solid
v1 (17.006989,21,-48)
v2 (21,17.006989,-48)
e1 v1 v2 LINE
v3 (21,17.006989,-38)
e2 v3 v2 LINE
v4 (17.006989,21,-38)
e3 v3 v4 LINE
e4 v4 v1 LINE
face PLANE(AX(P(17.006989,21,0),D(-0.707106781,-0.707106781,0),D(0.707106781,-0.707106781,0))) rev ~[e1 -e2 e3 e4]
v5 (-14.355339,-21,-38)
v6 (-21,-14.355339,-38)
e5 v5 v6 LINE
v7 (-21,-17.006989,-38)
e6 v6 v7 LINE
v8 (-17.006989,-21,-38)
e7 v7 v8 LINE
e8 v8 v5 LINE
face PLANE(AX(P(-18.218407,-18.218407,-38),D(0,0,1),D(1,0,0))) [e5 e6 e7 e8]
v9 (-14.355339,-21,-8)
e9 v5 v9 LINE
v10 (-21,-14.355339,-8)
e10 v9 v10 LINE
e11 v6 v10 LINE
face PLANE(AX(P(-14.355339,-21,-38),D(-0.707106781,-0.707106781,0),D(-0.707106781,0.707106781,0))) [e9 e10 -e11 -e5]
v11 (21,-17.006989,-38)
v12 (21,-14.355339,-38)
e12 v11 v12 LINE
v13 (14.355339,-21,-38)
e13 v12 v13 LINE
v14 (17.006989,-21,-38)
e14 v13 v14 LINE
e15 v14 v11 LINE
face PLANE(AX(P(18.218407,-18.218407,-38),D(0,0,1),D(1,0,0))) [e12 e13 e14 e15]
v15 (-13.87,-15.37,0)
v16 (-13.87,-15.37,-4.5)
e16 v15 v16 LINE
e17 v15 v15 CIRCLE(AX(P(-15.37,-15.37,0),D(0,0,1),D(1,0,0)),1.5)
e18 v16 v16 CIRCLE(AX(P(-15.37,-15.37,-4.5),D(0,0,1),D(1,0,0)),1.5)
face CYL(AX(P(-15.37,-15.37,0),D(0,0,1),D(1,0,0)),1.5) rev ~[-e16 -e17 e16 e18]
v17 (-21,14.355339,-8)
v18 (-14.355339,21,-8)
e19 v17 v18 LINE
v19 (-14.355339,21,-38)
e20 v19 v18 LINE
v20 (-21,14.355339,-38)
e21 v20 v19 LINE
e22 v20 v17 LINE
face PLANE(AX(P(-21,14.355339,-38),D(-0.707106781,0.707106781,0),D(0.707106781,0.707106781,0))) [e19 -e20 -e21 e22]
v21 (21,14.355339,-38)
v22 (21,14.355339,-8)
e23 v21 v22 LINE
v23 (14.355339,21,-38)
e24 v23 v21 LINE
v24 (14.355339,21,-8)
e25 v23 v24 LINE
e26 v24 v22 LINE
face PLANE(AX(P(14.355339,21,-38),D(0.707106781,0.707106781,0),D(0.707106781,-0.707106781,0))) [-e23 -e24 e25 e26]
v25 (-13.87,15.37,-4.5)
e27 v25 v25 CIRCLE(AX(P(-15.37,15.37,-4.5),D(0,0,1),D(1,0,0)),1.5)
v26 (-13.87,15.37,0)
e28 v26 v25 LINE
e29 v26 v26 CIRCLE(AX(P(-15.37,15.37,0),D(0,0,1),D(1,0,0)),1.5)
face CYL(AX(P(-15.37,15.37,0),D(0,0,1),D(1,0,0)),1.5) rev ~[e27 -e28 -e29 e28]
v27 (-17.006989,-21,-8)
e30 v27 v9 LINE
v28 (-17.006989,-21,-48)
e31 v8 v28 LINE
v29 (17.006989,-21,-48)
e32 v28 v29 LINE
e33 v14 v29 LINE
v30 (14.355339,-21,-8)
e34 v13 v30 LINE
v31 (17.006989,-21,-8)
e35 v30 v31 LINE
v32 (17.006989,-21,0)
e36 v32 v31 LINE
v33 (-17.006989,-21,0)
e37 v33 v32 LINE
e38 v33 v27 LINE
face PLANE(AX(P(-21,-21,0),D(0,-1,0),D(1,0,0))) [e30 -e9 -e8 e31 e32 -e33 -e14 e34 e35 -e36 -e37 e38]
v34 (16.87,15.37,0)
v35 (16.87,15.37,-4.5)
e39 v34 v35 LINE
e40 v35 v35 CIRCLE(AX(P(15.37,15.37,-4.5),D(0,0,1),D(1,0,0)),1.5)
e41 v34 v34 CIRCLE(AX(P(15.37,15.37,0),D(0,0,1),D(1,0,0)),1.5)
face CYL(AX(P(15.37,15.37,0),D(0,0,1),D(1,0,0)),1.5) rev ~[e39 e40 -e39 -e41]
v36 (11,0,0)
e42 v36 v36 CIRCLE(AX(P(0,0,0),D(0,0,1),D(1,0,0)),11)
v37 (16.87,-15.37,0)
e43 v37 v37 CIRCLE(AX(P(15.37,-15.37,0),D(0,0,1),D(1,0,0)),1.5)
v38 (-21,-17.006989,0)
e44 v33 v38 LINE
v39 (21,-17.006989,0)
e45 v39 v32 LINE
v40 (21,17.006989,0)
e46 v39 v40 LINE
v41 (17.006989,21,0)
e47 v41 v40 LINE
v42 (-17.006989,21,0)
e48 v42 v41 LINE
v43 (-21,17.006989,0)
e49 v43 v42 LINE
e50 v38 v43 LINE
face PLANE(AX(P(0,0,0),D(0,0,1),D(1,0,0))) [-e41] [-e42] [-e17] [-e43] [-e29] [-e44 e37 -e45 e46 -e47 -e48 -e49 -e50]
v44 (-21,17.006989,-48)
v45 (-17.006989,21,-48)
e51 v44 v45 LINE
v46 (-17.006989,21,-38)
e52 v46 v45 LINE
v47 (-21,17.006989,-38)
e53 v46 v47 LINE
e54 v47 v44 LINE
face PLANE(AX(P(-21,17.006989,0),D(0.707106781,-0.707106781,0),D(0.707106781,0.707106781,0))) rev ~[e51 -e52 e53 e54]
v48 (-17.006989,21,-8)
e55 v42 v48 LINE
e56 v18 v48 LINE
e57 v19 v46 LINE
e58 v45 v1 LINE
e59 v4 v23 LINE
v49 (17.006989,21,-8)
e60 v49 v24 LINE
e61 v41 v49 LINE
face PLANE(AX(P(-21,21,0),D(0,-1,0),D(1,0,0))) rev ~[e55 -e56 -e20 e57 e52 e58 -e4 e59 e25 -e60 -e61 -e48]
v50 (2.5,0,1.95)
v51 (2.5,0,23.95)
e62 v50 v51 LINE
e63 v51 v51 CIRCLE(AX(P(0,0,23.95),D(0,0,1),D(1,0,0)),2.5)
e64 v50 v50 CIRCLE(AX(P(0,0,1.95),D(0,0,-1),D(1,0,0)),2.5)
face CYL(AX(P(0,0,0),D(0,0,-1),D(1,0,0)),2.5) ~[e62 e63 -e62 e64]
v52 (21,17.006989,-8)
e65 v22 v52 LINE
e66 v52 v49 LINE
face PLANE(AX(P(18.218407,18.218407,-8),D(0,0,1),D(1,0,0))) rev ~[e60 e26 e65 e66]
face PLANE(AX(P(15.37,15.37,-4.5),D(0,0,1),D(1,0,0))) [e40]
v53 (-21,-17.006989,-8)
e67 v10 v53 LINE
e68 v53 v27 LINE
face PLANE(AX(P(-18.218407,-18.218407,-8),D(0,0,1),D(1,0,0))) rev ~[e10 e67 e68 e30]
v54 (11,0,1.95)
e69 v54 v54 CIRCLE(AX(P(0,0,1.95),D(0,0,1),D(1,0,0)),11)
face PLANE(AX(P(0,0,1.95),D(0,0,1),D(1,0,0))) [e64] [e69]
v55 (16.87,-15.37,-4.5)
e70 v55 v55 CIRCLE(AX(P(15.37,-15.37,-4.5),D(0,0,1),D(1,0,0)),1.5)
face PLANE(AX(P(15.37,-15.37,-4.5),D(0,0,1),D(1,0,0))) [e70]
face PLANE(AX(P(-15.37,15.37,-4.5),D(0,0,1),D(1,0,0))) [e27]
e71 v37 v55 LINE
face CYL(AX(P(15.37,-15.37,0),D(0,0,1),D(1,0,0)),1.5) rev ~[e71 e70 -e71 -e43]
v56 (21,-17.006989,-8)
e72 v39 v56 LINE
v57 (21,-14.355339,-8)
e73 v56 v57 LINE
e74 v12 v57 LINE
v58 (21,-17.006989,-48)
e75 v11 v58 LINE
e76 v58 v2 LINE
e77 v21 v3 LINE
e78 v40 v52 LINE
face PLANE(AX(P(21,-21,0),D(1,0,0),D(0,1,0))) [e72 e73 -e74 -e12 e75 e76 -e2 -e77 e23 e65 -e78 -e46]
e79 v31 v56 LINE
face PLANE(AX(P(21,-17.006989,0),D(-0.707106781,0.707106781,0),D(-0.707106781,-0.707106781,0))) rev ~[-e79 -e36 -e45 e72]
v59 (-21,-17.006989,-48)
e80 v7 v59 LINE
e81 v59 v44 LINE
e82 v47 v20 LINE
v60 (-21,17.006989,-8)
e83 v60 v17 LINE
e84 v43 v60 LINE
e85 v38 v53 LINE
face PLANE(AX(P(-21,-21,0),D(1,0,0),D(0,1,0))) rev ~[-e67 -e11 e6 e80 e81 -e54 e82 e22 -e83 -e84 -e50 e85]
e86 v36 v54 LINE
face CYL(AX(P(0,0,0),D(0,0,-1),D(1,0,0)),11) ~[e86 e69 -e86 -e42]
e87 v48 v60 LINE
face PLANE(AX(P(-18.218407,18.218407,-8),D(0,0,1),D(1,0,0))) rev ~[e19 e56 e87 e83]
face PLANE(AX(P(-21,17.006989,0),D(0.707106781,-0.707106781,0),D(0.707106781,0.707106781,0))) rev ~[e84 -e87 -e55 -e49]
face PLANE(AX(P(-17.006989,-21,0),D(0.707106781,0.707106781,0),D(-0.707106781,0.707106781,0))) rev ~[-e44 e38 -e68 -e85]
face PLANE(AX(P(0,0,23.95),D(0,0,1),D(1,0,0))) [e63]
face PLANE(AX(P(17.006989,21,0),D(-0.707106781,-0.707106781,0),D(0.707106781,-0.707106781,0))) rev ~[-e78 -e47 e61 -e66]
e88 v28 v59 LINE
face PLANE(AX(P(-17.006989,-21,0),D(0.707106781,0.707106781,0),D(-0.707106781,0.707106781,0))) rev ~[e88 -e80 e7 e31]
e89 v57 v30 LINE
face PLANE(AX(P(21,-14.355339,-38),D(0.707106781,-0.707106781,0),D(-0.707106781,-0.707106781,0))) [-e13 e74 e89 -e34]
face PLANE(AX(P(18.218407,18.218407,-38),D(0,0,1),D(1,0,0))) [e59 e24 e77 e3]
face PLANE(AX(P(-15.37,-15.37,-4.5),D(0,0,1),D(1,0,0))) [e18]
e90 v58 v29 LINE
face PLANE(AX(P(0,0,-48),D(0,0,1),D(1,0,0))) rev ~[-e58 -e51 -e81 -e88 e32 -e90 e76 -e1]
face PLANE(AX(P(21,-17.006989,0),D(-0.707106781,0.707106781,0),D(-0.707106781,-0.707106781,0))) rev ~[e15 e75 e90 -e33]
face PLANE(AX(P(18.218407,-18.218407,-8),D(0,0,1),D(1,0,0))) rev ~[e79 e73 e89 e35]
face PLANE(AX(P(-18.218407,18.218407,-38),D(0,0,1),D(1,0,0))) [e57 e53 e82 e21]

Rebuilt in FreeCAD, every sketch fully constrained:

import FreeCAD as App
import Part
import Sketcher

V = App.Vector
Q = App.Units.Quantity

doc = App.newDocument("Part")
body = doc.addObject("PartDesign::Body", "Body")

# Sketch on XY plane
sketch1 = body.newObject("Sketcher::SketchObject", "Sketch")
sketch1.AttachmentSupport = (doc.getObject("XY_Plane"), [""])
sketch1.MapMode = "FlatFace"
sketch1.addGeometry([
    Part.LineSegment(V(-21, 21, 0), V(-21, -21, 0)),  # 0
    Part.LineSegment(V(-21, -21, 0), V(21, -21, 0)),  # 1
    Part.LineSegment(V(21, -21, 0), V(21, 21, 0)),  # 2
    Part.LineSegment(V(21, 21, 0), V(-21, 21, 0)),  # 3
    Part.Circle(V(-15.4, -15.4, 0), V(0, 0, 1), 1.5),  # 4
    Part.Circle(V(15.4, -15.4, 0), V(0, 0, 1), 1.5),  # 5
    Part.Circle(V(-15.4, 15.4, 0), V(0, 0, 1), 1.5),  # 6
    Part.Circle(V(15.4, 15.4, 0), V(0, 0, 1), 1.5),  # 7
], False)
sketch1.addConstraint([
    Sketcher.Constraint("Coincident", 0, 2, 1, 1),
    Sketcher.Constraint("Coincident", 1, 2, 2, 1),
    Sketcher.Constraint("Coincident", 2, 2, 3, 1),
    Sketcher.Constraint("Coincident", 3, 2, 0, 1),
    Sketcher.Constraint("Vertical", 0),
    Sketcher.Constraint("Horizontal", 1),
    Sketcher.Constraint("Vertical", 2),
    Sketcher.Constraint("Horizontal", 3),
    Sketcher.Constraint("Equal", 4, 5),
    Sketcher.Constraint("Equal", 5, 6),
    Sketcher.Constraint("Equal", 6, 7),
    Sketcher.Constraint("Symmetric", 5, 3, 6, 3, -1, 1),
    Sketcher.Constraint("Symmetric", 4, 3, 7, 3, -1, 1),
    Sketcher.Constraint("Symmetric", 0, 2, 2, 2, -1, 1),
    Sketcher.Constraint("Symmetric", 4, 3, 5, 3, -2),
    Sketcher.Constraint("Equal", 3, 0),
    Sketcher.Constraint("Diameter", 4, Q("3 mm")),
    Sketcher.Constraint("DistanceX", 1, 1, 1, 2, Q("42 mm")),
    Sketcher.Constraint("DistanceX", 4, 3, -1, 1, Q("15.37 mm")),
    Sketcher.Constraint("DistanceY", 4, 3, -1, 1, Q("15.37 mm")),
])
pad1 = body.newObject("PartDesign::Pad", "Pad")
pad1.Profile = sketch1
pad1.Length = 48
pad1.Reversed = True

# Sketch on XY plane
sketch2 = body.newObject("Sketcher::SketchObject", "Sketch001")
sketch2.AttachmentSupport = (doc.getObject("XY_Plane"), [""])
sketch2.MapMode = "FlatFace"
sketch2.addGeometry(Part.Circle(V(0, 0, 0), V(0, 0, 1), 11), False)
sketch2.addConstraint([
    Sketcher.Constraint("Coincident", 0, 3, -1, 1),
    Sketcher.Constraint("Diameter", 0, Q("22 mm")),
])
pad2 = body.newObject("PartDesign::Pad", "Pad001")
pad2.Profile = sketch2
pad2.Length = 1.95

# Sketch on XY plane
sketch3 = body.newObject("Sketcher::SketchObject", "Sketch002")
sketch3.AttachmentSupport = (doc.getObject("XY_Plane"), [""])
sketch3.MapMode = "FlatFace"
sketch3.addGeometry(Part.Circle(V(0, 0, 0), V(0, 0, 1), 2.5), False)
sketch3.addConstraint([
    Sketcher.Constraint("Coincident", 0, 3, -1, 1),
    Sketcher.Constraint("Diameter", 0, Q("5 mm")),
])
pad3 = body.newObject("PartDesign::Pad", "Pad002")
pad3.Profile = sketch3
pad3.Length = 23.95

# Sketch on XY plane
sketch4 = body.newObject("Sketcher::SketchObject", "Sketch003")
sketch4.AttachmentSupport = (doc.getObject("XY_Plane"), [""])
sketch4.MapMode = "FlatFace"
sketch4.addGeometry([
    Part.LineSegment(V(-21, 17, 0), V(-17, 21, 0)),  # 0
    Part.LineSegment(V(-17, 21, 0), V(-21, 21, 0)),  # 1
    Part.LineSegment(V(-21, 21, 0), V(-21, 17, 0)),  # 2
    Part.LineSegment(V(-21, -21, 0), V(-17, -21, 0)),  # 3
    Part.LineSegment(V(-17, -21, 0), V(-21, -17, 0)),  # 4
    Part.LineSegment(V(-21, -17, 0), V(-21, -21, 0)),  # 5
    Part.LineSegment(V(17, 21, 0), V(21, 17, 0)),  # 6
    Part.LineSegment(V(21, 17, 0), V(21, 21, 0)),  # 7
    Part.LineSegment(V(21, 21, 0), V(17, 21, 0)),  # 8
    Part.LineSegment(V(21, -21, 0), V(21, -17, 0)),  # 9
    Part.LineSegment(V(21, -17, 0), V(17, -21, 0)),  # 10
    Part.LineSegment(V(17, -21, 0), V(21, -21, 0)),  # 11
], False)
sketch4.addConstraint([
    Sketcher.Constraint("Coincident", 0, 2, 1, 1),
    Sketcher.Constraint("Coincident", 1, 2, 2, 1),
    Sketcher.Constraint("Coincident", 2, 2, 0, 1),
    Sketcher.Constraint("Coincident", 3, 2, 4, 1),
    Sketcher.Constraint("Coincident", 4, 2, 5, 1),
    Sketcher.Constraint("Coincident", 5, 2, 3, 1),
    Sketcher.Constraint("Coincident", 6, 2, 7, 1),
    Sketcher.Constraint("Coincident", 7, 2, 8, 1),
    Sketcher.Constraint("Coincident", 8, 2, 6, 1),
    Sketcher.Constraint("Coincident", 9, 2, 10, 1),
    Sketcher.Constraint("Coincident", 10, 2, 11, 1),
    Sketcher.Constraint("Coincident", 11, 2, 9, 1),
    Sketcher.Constraint("Horizontal", 1),
    Sketcher.Constraint("Vertical", 2),
    Sketcher.Constraint("Horizontal", 3),
    Sketcher.Constraint("Vertical", 5),
    Sketcher.Constraint("Vertical", 7),
    Sketcher.Constraint("Horizontal", 8),
    Sketcher.Constraint("Vertical", 9),
    Sketcher.Constraint("Horizontal", 11),
    Sketcher.Constraint("Symmetric", 4, 2, 6, 2, -1, 1),
    Sketcher.Constraint("Symmetric", 3, 2, 8, 2, -1, 1),
    Sketcher.Constraint("Symmetric", 2, 2, 9, 2, -1, 1),
    Sketcher.Constraint("Symmetric", 0, 2, 10, 2, -1, 1),
    Sketcher.Constraint("Symmetric", 2, 2, 6, 2, -2),
    Sketcher.Constraint("Symmetric", 0, 2, 8, 2, -2),
    Sketcher.Constraint("Perpendicular", 0, 4),
    Sketcher.Constraint("DistanceY", -1, 1, 0, 2, Q("21 mm")),
    Sketcher.Constraint("DistanceX", 1, 2, -1, 1, Q("21 mm")),
    Sketcher.Constraint("DistanceX", 1, 2, 1, 1, Q("3.993011 mm")),
])
pocket1 = body.newObject("PartDesign::Pocket", "Pocket")
pocket1.Profile = sketch4
pocket1.Type = "ThroughAll"

# Sketch on XY plane
sketch5 = body.newObject("Sketcher::SketchObject", "Sketch004")
sketch5.AttachmentSupport = (doc.getObject("XY_Plane"), [""])
sketch5.MapMode = "FlatFace"
sketch5.AttachmentOffset = App.Placement(V(0, 0, -38), App.Rotation())
sketch5.addGeometry([
    Part.LineSegment(V(21, -14.4, 0), V(14.4, -21, 0)),  # 0
    Part.LineSegment(V(14.4, -21, 0), V(17, -21, 0)),  # 1
    Part.LineSegment(V(17, -21, 0), V(21, -17, 0)),  # 2
    Part.LineSegment(V(21, -17, 0), V(21, -14.4, 0)),  # 3
    Part.LineSegment(V(-21, 17, 0), V(-21, 14.4, 0)),  # 4
    Part.LineSegment(V(-21, 14.4, 0), V(-14.4, 21, 0)),  # 5
    Part.LineSegment(V(-14.4, 21, 0), V(-17, 21, 0)),  # 6
    Part.LineSegment(V(-17, 21, 0), V(-21, 17, 0)),  # 7
    Part.LineSegment(V(-17, -21, 0), V(-14.4, -21, 0)),  # 8
    Part.LineSegment(V(-14.4, -21, 0), V(-21, -14.4, 0)),  # 9
    Part.LineSegment(V(-21, -14.4, 0), V(-21, -17, 0)),  # 10
    Part.LineSegment(V(-21, -17, 0), V(-17, -21, 0)),  # 11
    Part.LineSegment(V(14.4, 21, 0), V(21, 14.4, 0)),  # 12
    Part.LineSegment(V(21, 14.4, 0), V(21, 17, 0)),  # 13
    Part.LineSegment(V(21, 17, 0), V(17, 21, 0)),  # 14
    Part.LineSegment(V(17, 21, 0), V(14.4, 21, 0)),  # 15
], False)
sketch5.addConstraint([
    Sketcher.Constraint("Coincident", 0, 2, 1, 1),
    Sketcher.Constraint("Coincident", 1, 2, 2, 1),
    Sketcher.Constraint("Coincident", 2, 2, 3, 1),
    Sketcher.Constraint("Coincident", 3, 2, 0, 1),
    Sketcher.Constraint("Coincident", 4, 2, 5, 1),
    Sketcher.Constraint("Coincident", 5, 2, 6, 1),
    Sketcher.Constraint("Coincident", 6, 2, 7, 1),
    Sketcher.Constraint("Coincident", 7, 2, 4, 1),
    Sketcher.Constraint("Coincident", 8, 2, 9, 1),
    Sketcher.Constraint("Coincident", 9, 2, 10, 1),
    Sketcher.Constraint("Coincident", 10, 2, 11, 1),
    Sketcher.Constraint("Coincident", 11, 2, 8, 1),
    Sketcher.Constraint("Coincident", 12, 2, 13, 1),
    Sketcher.Constraint("Coincident", 13, 2, 14, 1),
    Sketcher.Constraint("Coincident", 14, 2, 15, 1),
    Sketcher.Constraint("Coincident", 15, 2, 12, 1),
    Sketcher.Constraint("Horizontal", 1),
    Sketcher.Constraint("Vertical", 3),
    Sketcher.Constraint("Vertical", 4),
    Sketcher.Constraint("Horizontal", 6),
    Sketcher.Constraint("Horizontal", 8),
    Sketcher.Constraint("Vertical", 10),
    Sketcher.Constraint("Vertical", 13),
    Sketcher.Constraint("Horizontal", 15),
    Sketcher.Constraint("Symmetric", 3, 2, 4, 2, -1, 1),
    Sketcher.Constraint("Symmetric", 0, 2, 5, 2, -1, 1),
    Sketcher.Constraint("Symmetric", 9, 2, 12, 2, -1, 1),
    Sketcher.Constraint("Symmetric", 11, 2, 14, 2, -1, 1),
    Sketcher.Constraint("Symmetric", 0, 2, 8, 2, -2),
    Sketcher.Constraint("Symmetric", 3, 2, 9, 2, -2),
    Sketcher.Constraint("Parallel", 0, 2),
    Sketcher.Constraint("Parallel", 5, 7),
    Sketcher.Constraint("Perpendicular", 7, 9),
    Sketcher.Constraint("Parallel", 9, 11),
    Sketcher.Constraint("Parallel", 11, 12),
    Sketcher.Constraint("Parallel", 12, 14),
    Sketcher.Constraint("Horizontal", 2, 2, 10, 2),
    Sketcher.Constraint("Horizontal", 7, 2, 13, 2),
    Sketcher.Constraint("DistanceY", 0, 2, -1, 1, Q("21 mm")),
    Sketcher.Constraint("DistanceX", -1, 1, 2, 2, Q("21 mm")),
    Sketcher.Constraint("DistanceX", 1, 1, 1, 2, Q("2.65165 mm")),
    Sketcher.Constraint("Distance", 0, Q("9.39697 mm")),
])
pocket2 = body.newObject("PartDesign::Pocket", "Pocket001")
pocket2.Profile = sketch5
pocket2.Length = 30
pocket2.Reversed = True

# Sketch on XY plane
sketch6 = body.newObject("Sketcher::SketchObject", "Sketch005")
sketch6.AttachmentSupport = (doc.getObject("XY_Plane"), [""])
sketch6.MapMode = "FlatFace"
sketch6.AttachmentOffset = App.Placement(V(0, 0, -4.5), App.Rotation())
sketch6.addGeometry([
    Part.Circle(V(-15.4, 15.4, 0), V(0, 0, 1), 1.5),
    Part.Circle(V(15.4, 15.4, 0), V(0, 0, 1), 1.5),
    Part.Circle(V(15.4, -15.4, 0), V(0, 0, 1), 1.5),
    Part.Circle(V(-15.4, -15.4, 0), V(0, 0, 1), 1.5),
], False)
sketch6.addConstraint([
    Sketcher.Constraint("Equal", 0, 1),
    Sketcher.Constraint("Equal", 1, 2),
    Sketcher.Constraint("Equal", 2, 3),
    Sketcher.Constraint("Symmetric", 0, 3, 2, 3, -1, 1),
    Sketcher.Constraint("Symmetric", 1, 3, 3, 3, -1, 1),
    Sketcher.Constraint("Symmetric", 0, 3, 1, 3, -2),
    Sketcher.Constraint("Diameter", 0, Q("3 mm")),
    Sketcher.Constraint("DistanceX", 0, 3, -1, 1, Q("15.37 mm")),
    Sketcher.Constraint("DistanceY", -1, 1, 0, 3, Q("15.37 mm")),
])
pad4 = body.newObject("PartDesign::Pad", "Pad003")
pad4.Profile = sketch6
pad4.Type = "UpToLast"
pad4.Reversed = True

doc.recompute()
